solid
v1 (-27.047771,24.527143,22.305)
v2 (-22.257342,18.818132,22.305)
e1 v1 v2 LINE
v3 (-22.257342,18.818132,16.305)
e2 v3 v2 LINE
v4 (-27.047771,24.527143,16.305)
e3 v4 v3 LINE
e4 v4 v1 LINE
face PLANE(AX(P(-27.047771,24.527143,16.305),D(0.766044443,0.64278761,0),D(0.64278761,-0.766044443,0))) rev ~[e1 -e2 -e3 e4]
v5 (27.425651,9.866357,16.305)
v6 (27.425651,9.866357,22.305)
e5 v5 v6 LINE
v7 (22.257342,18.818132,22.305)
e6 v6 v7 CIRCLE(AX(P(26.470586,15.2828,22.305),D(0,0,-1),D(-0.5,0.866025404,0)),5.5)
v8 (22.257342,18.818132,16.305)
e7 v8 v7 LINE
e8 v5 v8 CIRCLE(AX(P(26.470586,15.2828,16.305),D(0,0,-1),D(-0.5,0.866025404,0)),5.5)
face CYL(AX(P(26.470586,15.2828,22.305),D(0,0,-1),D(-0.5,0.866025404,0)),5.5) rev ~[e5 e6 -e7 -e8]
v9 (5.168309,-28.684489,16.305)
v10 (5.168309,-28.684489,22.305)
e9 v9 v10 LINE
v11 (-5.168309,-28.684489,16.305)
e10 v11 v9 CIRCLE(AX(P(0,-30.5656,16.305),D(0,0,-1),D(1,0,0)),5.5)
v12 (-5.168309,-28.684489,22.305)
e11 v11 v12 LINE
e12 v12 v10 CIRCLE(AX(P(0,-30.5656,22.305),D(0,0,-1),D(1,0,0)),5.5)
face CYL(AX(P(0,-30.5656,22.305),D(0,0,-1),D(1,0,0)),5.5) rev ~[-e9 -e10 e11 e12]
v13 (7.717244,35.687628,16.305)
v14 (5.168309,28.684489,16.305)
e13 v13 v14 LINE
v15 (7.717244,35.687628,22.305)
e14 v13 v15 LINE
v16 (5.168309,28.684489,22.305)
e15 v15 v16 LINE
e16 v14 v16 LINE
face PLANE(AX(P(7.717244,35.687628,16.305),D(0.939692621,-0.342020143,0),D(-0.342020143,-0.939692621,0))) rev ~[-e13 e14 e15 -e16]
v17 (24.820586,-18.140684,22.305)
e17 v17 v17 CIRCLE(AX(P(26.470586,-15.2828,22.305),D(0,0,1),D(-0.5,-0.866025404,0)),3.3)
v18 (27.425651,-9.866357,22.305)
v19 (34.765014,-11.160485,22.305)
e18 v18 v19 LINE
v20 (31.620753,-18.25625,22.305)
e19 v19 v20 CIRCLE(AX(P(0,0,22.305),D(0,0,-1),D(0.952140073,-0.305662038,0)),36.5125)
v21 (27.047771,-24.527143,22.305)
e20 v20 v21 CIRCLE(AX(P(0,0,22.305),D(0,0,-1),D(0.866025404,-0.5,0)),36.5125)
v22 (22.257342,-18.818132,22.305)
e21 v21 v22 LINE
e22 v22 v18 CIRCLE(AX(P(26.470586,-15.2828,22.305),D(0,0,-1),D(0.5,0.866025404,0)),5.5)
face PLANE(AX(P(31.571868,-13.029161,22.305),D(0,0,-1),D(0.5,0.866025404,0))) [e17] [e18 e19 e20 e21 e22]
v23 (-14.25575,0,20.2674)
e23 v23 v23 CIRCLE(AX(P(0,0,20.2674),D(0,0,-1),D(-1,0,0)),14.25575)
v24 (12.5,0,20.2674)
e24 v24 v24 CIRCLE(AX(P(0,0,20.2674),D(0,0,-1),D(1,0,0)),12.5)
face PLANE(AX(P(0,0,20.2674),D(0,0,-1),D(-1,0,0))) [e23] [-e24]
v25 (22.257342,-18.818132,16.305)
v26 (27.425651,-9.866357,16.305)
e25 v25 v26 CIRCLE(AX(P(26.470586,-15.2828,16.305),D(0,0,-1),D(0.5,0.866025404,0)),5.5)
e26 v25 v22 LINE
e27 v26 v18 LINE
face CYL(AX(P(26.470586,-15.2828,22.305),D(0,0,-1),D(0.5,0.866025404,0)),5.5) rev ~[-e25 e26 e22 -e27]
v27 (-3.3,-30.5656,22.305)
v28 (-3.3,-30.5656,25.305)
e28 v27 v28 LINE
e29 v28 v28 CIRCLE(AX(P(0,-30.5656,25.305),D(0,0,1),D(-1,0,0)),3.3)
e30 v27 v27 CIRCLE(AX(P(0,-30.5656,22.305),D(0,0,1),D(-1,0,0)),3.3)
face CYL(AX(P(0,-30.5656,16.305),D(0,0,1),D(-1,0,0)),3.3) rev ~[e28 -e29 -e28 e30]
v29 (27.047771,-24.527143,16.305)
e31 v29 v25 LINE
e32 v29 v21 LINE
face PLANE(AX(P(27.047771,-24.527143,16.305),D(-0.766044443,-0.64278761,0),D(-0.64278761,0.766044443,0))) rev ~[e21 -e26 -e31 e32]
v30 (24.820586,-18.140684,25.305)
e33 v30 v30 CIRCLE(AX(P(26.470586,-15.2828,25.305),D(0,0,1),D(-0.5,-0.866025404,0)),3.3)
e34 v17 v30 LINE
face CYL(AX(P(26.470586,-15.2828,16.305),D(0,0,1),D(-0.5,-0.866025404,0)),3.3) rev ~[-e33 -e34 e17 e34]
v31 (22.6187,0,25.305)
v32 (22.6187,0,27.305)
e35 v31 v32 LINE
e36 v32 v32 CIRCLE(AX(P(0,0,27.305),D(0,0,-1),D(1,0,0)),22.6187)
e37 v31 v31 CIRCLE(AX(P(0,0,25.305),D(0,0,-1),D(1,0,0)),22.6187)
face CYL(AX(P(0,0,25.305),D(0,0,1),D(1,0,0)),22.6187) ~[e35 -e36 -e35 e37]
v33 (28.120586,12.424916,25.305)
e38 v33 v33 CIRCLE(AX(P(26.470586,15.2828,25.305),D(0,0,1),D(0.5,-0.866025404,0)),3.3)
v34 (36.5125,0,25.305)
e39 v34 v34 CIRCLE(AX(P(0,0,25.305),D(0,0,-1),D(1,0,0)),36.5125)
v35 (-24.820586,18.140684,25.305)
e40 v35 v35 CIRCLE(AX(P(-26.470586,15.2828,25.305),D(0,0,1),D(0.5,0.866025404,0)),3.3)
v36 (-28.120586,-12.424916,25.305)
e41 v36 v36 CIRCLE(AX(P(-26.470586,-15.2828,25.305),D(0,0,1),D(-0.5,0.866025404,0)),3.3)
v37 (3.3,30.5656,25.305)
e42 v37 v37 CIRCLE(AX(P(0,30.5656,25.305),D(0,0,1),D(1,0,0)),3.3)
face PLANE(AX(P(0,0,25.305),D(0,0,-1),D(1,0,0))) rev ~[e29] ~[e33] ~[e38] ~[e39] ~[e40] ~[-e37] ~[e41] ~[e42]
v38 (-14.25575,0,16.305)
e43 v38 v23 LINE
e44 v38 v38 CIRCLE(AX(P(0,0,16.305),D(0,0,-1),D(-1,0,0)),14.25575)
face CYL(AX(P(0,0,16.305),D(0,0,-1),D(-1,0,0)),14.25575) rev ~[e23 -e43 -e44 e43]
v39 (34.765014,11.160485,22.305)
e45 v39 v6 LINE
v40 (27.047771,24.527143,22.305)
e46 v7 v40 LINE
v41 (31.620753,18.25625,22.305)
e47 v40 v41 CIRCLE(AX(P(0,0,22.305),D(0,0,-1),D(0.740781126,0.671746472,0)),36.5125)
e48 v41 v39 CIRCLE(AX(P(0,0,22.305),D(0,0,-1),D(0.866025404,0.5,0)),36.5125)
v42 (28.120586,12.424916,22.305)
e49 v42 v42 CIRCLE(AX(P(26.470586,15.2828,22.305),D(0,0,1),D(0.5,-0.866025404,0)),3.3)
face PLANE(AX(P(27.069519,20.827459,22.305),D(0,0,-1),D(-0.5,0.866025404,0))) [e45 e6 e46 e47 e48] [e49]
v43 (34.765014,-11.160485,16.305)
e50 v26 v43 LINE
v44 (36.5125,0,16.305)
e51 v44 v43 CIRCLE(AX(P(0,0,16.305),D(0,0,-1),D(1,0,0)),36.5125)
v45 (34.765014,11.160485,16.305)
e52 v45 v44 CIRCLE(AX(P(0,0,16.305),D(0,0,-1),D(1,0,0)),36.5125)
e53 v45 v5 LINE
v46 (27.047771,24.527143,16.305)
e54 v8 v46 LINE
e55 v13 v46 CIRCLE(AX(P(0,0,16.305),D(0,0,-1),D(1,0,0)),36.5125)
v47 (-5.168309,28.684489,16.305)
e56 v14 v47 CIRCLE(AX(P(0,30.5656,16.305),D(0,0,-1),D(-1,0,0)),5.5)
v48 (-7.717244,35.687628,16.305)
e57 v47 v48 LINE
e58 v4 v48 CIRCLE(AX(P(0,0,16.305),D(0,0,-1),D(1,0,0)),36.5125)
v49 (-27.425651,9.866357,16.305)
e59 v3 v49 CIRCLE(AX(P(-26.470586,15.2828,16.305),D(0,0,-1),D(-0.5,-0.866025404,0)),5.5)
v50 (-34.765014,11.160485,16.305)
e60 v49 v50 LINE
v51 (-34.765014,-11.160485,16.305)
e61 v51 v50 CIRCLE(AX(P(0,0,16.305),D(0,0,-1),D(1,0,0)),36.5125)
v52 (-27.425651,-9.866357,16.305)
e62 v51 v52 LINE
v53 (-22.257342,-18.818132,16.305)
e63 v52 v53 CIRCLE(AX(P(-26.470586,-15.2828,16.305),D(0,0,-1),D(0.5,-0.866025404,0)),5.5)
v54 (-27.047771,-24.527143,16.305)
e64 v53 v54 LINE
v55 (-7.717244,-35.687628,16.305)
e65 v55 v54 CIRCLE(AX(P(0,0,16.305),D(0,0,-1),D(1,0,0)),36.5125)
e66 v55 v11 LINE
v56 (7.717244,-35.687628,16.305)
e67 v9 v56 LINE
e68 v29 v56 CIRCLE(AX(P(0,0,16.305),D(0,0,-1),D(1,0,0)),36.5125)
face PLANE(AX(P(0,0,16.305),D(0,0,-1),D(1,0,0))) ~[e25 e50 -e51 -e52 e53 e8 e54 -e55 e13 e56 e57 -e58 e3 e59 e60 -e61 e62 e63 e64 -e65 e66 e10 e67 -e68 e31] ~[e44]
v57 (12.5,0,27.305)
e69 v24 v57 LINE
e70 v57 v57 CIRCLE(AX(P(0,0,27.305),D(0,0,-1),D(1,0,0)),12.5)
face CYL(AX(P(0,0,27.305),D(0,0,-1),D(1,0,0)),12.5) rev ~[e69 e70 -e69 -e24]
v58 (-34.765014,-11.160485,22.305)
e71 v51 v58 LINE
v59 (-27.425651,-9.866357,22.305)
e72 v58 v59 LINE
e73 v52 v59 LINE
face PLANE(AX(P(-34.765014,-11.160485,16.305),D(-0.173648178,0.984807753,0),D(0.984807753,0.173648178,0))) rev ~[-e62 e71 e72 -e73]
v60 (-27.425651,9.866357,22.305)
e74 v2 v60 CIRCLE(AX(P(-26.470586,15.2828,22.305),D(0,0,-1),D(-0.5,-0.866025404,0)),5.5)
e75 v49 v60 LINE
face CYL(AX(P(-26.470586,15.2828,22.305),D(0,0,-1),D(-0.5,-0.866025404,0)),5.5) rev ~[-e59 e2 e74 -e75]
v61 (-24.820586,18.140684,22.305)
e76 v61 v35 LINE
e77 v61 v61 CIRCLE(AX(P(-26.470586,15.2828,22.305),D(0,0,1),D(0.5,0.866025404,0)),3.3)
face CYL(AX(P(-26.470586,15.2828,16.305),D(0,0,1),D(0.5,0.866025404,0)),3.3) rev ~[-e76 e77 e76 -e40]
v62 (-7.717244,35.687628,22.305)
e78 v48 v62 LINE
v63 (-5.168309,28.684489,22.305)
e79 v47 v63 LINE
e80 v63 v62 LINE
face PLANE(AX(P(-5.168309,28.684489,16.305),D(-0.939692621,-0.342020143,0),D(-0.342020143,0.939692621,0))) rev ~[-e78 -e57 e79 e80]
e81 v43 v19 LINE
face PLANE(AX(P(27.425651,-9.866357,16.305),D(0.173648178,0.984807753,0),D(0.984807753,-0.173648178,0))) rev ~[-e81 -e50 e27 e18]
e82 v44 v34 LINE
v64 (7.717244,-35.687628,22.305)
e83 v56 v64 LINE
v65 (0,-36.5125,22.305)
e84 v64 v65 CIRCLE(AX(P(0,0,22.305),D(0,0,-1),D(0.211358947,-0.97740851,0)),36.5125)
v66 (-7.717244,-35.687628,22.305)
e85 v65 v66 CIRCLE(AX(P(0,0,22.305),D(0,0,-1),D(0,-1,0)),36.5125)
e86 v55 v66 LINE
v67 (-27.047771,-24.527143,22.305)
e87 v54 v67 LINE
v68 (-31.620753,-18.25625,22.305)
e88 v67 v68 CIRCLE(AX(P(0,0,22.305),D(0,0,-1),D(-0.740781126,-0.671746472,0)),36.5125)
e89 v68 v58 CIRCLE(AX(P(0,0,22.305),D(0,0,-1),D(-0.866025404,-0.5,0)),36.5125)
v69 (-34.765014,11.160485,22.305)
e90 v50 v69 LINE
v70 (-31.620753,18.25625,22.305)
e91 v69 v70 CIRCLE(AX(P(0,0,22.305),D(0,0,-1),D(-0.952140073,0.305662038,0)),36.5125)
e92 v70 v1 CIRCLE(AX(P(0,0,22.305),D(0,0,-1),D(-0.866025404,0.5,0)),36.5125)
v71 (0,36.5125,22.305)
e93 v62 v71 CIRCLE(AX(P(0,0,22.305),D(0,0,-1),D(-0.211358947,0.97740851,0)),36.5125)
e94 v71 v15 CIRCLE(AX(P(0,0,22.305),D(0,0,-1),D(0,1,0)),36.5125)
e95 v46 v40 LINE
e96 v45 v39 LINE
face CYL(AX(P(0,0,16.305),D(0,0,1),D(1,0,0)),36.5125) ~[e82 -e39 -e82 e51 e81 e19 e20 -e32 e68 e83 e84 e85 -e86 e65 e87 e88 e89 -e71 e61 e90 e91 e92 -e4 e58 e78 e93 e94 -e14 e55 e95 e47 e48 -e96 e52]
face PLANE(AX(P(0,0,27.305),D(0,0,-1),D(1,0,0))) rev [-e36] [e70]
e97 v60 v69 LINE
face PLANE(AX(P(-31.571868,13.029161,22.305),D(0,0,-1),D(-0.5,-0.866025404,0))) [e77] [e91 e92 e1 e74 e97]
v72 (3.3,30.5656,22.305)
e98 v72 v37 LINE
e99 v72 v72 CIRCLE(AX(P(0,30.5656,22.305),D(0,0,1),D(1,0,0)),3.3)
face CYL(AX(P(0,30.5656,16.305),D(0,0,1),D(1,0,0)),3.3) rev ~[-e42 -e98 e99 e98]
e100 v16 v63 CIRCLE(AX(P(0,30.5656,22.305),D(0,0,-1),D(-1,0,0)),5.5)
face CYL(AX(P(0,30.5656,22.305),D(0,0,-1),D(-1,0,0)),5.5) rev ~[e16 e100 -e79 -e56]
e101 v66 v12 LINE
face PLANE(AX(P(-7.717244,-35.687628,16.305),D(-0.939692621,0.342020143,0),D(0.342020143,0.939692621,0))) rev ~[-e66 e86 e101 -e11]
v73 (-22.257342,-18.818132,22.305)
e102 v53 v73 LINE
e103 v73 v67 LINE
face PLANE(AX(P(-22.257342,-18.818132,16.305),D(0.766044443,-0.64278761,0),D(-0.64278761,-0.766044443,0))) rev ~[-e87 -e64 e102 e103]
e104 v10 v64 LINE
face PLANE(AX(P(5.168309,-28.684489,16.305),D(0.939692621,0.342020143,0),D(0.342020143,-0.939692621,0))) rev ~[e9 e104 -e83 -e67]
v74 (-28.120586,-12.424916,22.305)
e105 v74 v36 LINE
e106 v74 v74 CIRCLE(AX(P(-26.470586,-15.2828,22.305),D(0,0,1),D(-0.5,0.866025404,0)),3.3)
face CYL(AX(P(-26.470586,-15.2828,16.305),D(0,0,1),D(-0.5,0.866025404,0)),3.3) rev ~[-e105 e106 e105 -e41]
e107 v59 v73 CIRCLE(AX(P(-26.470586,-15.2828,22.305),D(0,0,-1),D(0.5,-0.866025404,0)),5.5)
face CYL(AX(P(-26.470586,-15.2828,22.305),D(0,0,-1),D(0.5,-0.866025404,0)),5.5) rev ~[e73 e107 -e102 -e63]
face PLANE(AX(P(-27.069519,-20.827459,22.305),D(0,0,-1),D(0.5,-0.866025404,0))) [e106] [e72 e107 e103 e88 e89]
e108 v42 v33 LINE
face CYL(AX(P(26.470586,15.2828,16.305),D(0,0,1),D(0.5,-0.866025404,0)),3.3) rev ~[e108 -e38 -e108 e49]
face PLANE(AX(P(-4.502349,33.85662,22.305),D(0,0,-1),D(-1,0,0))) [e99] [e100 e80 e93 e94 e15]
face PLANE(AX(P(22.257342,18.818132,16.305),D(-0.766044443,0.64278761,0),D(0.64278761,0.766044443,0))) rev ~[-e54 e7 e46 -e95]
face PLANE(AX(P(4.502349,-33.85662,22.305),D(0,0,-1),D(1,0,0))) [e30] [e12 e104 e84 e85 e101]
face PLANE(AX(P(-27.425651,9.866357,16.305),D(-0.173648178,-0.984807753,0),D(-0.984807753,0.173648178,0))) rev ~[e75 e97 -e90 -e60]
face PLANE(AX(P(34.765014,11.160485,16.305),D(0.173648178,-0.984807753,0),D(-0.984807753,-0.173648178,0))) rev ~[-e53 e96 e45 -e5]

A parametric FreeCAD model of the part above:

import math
import FreeCAD as App
import Part
import Sketcher

V = App.Vector
Q = App.Units.Quantity

doc = App.newDocument("Part")
body = doc.addObject("PartDesign::Body", "Body")

sketch1 = body.newObject("Sketcher::SketchObject", "Sketch")
sketch1.AttachmentSupport = (doc.getObject("YZ_Plane"), [""])
sketch1.MapMode = "FlatFace"
sketch1.addGeometry([
    Part.LineSegment(V(12.5, 25.3, 0), V(9.5, 25.3, 0)),
    Part.LineSegment(V(9.5, 25.3, 0), V(9.5, 16.3, 0)),
    Part.LineSegment(V(9.5, 16.3, 0), V(36.5, 16.3, 0)),
    Part.LineSegment(V(36.5, 16.3, 0), V(36.5, 25.3, 0)),
    Part.LineSegment(V(36.5, 25.3, 0), V(22.6, 25.3, 0)),
    Part.LineSegment(V(22.6, 25.3, 0), V(22.6, 27.3, 0)),
    Part.LineSegment(V(22.6, 27.3, 0), V(12.5, 27.3, 0)),
    Part.LineSegment(V(12.5, 27.3, 0), V(12.5, 25.3, 0)),
], False)
sketch1.addConstraint([
    Sketcher.Constraint("Coincident", 0, 2, 1, 1),
    Sketcher.Constraint("Coincident", 1, 2, 2, 1),
    Sketcher.Constraint("Coincident", 2, 2, 3, 1),
    Sketcher.Constraint("Coincident", 3, 2, 4, 1),
    Sketcher.Constraint("Coincident", 4, 2, 5, 1),
    Sketcher.Constraint("Coincident", 5, 2, 6, 1),
    Sketcher.Constraint("Coincident", 6, 2, 7, 1),
    Sketcher.Constraint("Coincident", 7, 2, 0, 1),
    Sketcher.Constraint("Horizontal", 0),
    Sketcher.Constraint("Vertical", 1),
    Sketcher.Constraint("Horizontal", 2),
    Sketcher.Constraint("Vertical", 3),
    Sketcher.Constraint("Horizontal", 4),
    Sketcher.Constraint("Vertical", 5),
    Sketcher.Constraint("Horizontal", 6),
    Sketcher.Constraint("Vertical", 7),
    Sketcher.Constraint("Horizontal", 0, 2, 3, 2),
    Sketcher.Constraint("DistanceY", 1, 2, 1, 1, 9.0),
    Sketcher.Constraint("DistanceY", 5, 1, 5, 2, 2.0),
    Sketcher.Constraint("DistanceX", -1, 1, 6, 2, 12.5),
    Sketcher.Constraint("DistanceX", 0, 2, 0, 1, 2.975),
    Sketcher.Constraint("DistanceX", 2, 1, 2, 2, 26.9875),
    Sketcher.Constraint("DistanceX", 4, 2, 4, 1, 13.8938),
    Sketcher.Constraint("DistanceY", -1, 1, 0, 2, 25.305),
])
revolution = body.newObject("PartDesign::Revolution", "Revolution")
revolution.Profile = sketch1
revolution.ReferenceAxis = (sketch1, ["V_Axis"])
revolution.Angle = 360

sketch2 = body.newObject("Sketcher::SketchObject", "Sketch001")
sketch2.AttachmentSupport = (doc.getObject("XY_Plane"), [""])
sketch2.MapMode = "FlatFace"
sketch2.AttachmentOffset = App.Placement(V(0, 0, 25.305), App.Rotation())
sketch2.addGeometry(Part.Circle(V(0, 0, 0), V(0, 0, 1), 12), False)
sketch2.addConstraint([
    Sketcher.Constraint("Coincident", 0, 3, -1, 1),
    Sketcher.Constraint("Diameter", 0, 25.0),
])
pocket1 = body.newObject("PartDesign::Pocket", "Pocket")
pocket1.Profile = sketch2
pocket1.Type = "ThroughAll"
pocket1.Midplane = True

sketch3 = body.newObject("Sketcher::SketchObject", "Sketch002")
sketch3.AttachmentSupport = (doc.getObject("XY_Plane"), [""])
sketch3.MapMode = "FlatFace"
sketch3.AttachmentOffset = App.Placement(V(0, 0, 16.305), App.Rotation())
sketch3.addGeometry(Part.Circle(V(0, 30.6, 0), V(0, 0, 1), 3.3), False)
sketch3.addConstraint([
    Sketcher.Constraint("PointOnObject", 0, 3, -2),
    Sketcher.Constraint("Diameter", 0, 6.6),
    Sketcher.Constraint("DistanceY", -1, 1, 0, 3, 30.5656),
])
doc.recompute()
hole = body.newObject("PartDesign::Hole", "Hole")
hole.Profile = sketch3
hole.ThreadType = "None"
hole.Diameter = 6.6
hole.DepthType = "ThroughAll"
hole.HoleCutType = "Counterbore"
hole.HoleCutDiameter = 11
hole.HoleCutDepth = 6
hole.Reversed = True
doc.recompute()

polarpattern = body.newObject("PartDesign::PolarPattern", "PolarPattern")
polarpattern.Originals = [hole]
polarpattern.Axis = (doc.getObject("Z_Axis"), [""])
polarpattern.Angle = 360
polarpattern.Occurrences = 6
body.Tip = polarpattern

sketch4 = body.newObject("Sketcher::SketchObject", "Sketch003")
sketch4.AttachmentSupport = (doc.getObject("XY_Plane"), [""])
sketch4.MapMode = "FlatFace"
sketch4.AttachmentOffset = App.Placement(V(0, 0, 16.305), App.Rotation())
sketch4.addGeometry(Part.Circle(V(0, 0, 0), V(0, 0, 1), 14), False)
sketch4.addConstraint([
    Sketcher.Constraint("Coincident", 0, 3, -1, 1),
    Sketcher.Constraint("Diameter", 0, 28.5115),
])
pocket2 = body.newObject("PartDesign::Pocket", "Pocket001")
pocket2.Profile = sketch4
pocket2.Length = 3.9624
pocket2.Reversed = True

sketch5 = body.newObject("Sketcher::SketchObject", "Sketch004")
sketch5.AttachmentSupport = (doc.getObject("XY_Plane"), [""])
sketch5.MapMode = "FlatFace"
sketch5.AttachmentOffset = App.Placement(V(0, 0, 16.305), App.Rotation())
sketch5.addGeometry([
    Part.ArcOfCircle(Part.Circle(V(0, 30.6, 0), V(0, 0, 1), 5.5), math.radians(180), math.radians(200)),
    Part.LineSegment(V(-5.2, 28.7, 0), V(-7.7, 35.7, 0)),
    Part.ArcOfCircle(Part.Circle(V(0, 0, 0), V(0, 0, 1), 36.5), math.radians(90), math.radians(102.2)),
    Part.ArcOfCircle(Part.Circle(V(0, 0, 0), V(0, 0, 1), 36.5), math.radians(77.8), math.radians(90)),
    Part.LineSegment(V(7.7, 35.7, 0), V(5.2, 28.7, 0)),
    Part.ArcOfCircle(Part.Circle(V(0, 30.6, 0), V(0, 0, 1), 5.5), math.radians(-20), math.radians(90)),
    Part.ArcOfCircle(Part.Circle(V(0, 30.6, 0), V(0, 0, 1), 5.5), math.radians(90), math.radians(180)),
], False)
sketch5.addConstraint([
    Sketcher.Constraint("Tangent", 0, 2, 1, 1),
    Sketcher.Constraint("Coincident", 1, 2, 2, 2),
    Sketcher.Constraint("Tangent", 2, 1, 3, 2),
    Sketcher.Constraint("Coincident", 3, 1, 4, 1),
    Sketcher.Constraint("Tangent", 4, 2, 5, 1),
    Sketcher.Constraint("Tangent", 5, 2, 6, 1),
    Sketcher.Constraint("Tangent", 6, 2, 0, 1),
    Sketcher.Constraint("Coincident", 2, 3, -1, 1),
    Sketcher.Constraint("Coincident", 5, 3, 0, 3),
    Sketcher.Constraint("Equal", 2, 3),
    Sketcher.Constraint("Symmetric", 0, 2, 4, 2, -2),
    Sketcher.Constraint("PointOnObject", 2, 1, -2),
    Sketcher.Constraint("PointOnObject", 5, 2, -2),
    Sketcher.Constraint("Horizontal", 5, 3, 6, 2),
    Sketcher.Constraint("Radius", 0, 5.5),
    Sketcher.Constraint("Angle", 1, Q("110 deg")),
    Sketcher.Constraint("Radius", 2, 36.5125),
    Sketcher.Constraint("DistanceY", -1, 1, 0, 3, 30.5656),
])
pocket3 = body.newObject("PartDesign::Pocket", "Pocket002")
pocket3.Profile = sketch5
pocket3.Length = 6
pocket3.Reversed = True
doc.recompute()

polarpattern2 = body.newObject("PartDesign::PolarPattern", "PolarPattern001")
polarpattern2.Originals = [pocket3]
polarpattern2.Axis = (doc.getObject("Z_Axis"), [""])
polarpattern2.Angle = 360
polarpattern2.Occurrences = 6
body.Tip = polarpattern2

doc.recompute()
